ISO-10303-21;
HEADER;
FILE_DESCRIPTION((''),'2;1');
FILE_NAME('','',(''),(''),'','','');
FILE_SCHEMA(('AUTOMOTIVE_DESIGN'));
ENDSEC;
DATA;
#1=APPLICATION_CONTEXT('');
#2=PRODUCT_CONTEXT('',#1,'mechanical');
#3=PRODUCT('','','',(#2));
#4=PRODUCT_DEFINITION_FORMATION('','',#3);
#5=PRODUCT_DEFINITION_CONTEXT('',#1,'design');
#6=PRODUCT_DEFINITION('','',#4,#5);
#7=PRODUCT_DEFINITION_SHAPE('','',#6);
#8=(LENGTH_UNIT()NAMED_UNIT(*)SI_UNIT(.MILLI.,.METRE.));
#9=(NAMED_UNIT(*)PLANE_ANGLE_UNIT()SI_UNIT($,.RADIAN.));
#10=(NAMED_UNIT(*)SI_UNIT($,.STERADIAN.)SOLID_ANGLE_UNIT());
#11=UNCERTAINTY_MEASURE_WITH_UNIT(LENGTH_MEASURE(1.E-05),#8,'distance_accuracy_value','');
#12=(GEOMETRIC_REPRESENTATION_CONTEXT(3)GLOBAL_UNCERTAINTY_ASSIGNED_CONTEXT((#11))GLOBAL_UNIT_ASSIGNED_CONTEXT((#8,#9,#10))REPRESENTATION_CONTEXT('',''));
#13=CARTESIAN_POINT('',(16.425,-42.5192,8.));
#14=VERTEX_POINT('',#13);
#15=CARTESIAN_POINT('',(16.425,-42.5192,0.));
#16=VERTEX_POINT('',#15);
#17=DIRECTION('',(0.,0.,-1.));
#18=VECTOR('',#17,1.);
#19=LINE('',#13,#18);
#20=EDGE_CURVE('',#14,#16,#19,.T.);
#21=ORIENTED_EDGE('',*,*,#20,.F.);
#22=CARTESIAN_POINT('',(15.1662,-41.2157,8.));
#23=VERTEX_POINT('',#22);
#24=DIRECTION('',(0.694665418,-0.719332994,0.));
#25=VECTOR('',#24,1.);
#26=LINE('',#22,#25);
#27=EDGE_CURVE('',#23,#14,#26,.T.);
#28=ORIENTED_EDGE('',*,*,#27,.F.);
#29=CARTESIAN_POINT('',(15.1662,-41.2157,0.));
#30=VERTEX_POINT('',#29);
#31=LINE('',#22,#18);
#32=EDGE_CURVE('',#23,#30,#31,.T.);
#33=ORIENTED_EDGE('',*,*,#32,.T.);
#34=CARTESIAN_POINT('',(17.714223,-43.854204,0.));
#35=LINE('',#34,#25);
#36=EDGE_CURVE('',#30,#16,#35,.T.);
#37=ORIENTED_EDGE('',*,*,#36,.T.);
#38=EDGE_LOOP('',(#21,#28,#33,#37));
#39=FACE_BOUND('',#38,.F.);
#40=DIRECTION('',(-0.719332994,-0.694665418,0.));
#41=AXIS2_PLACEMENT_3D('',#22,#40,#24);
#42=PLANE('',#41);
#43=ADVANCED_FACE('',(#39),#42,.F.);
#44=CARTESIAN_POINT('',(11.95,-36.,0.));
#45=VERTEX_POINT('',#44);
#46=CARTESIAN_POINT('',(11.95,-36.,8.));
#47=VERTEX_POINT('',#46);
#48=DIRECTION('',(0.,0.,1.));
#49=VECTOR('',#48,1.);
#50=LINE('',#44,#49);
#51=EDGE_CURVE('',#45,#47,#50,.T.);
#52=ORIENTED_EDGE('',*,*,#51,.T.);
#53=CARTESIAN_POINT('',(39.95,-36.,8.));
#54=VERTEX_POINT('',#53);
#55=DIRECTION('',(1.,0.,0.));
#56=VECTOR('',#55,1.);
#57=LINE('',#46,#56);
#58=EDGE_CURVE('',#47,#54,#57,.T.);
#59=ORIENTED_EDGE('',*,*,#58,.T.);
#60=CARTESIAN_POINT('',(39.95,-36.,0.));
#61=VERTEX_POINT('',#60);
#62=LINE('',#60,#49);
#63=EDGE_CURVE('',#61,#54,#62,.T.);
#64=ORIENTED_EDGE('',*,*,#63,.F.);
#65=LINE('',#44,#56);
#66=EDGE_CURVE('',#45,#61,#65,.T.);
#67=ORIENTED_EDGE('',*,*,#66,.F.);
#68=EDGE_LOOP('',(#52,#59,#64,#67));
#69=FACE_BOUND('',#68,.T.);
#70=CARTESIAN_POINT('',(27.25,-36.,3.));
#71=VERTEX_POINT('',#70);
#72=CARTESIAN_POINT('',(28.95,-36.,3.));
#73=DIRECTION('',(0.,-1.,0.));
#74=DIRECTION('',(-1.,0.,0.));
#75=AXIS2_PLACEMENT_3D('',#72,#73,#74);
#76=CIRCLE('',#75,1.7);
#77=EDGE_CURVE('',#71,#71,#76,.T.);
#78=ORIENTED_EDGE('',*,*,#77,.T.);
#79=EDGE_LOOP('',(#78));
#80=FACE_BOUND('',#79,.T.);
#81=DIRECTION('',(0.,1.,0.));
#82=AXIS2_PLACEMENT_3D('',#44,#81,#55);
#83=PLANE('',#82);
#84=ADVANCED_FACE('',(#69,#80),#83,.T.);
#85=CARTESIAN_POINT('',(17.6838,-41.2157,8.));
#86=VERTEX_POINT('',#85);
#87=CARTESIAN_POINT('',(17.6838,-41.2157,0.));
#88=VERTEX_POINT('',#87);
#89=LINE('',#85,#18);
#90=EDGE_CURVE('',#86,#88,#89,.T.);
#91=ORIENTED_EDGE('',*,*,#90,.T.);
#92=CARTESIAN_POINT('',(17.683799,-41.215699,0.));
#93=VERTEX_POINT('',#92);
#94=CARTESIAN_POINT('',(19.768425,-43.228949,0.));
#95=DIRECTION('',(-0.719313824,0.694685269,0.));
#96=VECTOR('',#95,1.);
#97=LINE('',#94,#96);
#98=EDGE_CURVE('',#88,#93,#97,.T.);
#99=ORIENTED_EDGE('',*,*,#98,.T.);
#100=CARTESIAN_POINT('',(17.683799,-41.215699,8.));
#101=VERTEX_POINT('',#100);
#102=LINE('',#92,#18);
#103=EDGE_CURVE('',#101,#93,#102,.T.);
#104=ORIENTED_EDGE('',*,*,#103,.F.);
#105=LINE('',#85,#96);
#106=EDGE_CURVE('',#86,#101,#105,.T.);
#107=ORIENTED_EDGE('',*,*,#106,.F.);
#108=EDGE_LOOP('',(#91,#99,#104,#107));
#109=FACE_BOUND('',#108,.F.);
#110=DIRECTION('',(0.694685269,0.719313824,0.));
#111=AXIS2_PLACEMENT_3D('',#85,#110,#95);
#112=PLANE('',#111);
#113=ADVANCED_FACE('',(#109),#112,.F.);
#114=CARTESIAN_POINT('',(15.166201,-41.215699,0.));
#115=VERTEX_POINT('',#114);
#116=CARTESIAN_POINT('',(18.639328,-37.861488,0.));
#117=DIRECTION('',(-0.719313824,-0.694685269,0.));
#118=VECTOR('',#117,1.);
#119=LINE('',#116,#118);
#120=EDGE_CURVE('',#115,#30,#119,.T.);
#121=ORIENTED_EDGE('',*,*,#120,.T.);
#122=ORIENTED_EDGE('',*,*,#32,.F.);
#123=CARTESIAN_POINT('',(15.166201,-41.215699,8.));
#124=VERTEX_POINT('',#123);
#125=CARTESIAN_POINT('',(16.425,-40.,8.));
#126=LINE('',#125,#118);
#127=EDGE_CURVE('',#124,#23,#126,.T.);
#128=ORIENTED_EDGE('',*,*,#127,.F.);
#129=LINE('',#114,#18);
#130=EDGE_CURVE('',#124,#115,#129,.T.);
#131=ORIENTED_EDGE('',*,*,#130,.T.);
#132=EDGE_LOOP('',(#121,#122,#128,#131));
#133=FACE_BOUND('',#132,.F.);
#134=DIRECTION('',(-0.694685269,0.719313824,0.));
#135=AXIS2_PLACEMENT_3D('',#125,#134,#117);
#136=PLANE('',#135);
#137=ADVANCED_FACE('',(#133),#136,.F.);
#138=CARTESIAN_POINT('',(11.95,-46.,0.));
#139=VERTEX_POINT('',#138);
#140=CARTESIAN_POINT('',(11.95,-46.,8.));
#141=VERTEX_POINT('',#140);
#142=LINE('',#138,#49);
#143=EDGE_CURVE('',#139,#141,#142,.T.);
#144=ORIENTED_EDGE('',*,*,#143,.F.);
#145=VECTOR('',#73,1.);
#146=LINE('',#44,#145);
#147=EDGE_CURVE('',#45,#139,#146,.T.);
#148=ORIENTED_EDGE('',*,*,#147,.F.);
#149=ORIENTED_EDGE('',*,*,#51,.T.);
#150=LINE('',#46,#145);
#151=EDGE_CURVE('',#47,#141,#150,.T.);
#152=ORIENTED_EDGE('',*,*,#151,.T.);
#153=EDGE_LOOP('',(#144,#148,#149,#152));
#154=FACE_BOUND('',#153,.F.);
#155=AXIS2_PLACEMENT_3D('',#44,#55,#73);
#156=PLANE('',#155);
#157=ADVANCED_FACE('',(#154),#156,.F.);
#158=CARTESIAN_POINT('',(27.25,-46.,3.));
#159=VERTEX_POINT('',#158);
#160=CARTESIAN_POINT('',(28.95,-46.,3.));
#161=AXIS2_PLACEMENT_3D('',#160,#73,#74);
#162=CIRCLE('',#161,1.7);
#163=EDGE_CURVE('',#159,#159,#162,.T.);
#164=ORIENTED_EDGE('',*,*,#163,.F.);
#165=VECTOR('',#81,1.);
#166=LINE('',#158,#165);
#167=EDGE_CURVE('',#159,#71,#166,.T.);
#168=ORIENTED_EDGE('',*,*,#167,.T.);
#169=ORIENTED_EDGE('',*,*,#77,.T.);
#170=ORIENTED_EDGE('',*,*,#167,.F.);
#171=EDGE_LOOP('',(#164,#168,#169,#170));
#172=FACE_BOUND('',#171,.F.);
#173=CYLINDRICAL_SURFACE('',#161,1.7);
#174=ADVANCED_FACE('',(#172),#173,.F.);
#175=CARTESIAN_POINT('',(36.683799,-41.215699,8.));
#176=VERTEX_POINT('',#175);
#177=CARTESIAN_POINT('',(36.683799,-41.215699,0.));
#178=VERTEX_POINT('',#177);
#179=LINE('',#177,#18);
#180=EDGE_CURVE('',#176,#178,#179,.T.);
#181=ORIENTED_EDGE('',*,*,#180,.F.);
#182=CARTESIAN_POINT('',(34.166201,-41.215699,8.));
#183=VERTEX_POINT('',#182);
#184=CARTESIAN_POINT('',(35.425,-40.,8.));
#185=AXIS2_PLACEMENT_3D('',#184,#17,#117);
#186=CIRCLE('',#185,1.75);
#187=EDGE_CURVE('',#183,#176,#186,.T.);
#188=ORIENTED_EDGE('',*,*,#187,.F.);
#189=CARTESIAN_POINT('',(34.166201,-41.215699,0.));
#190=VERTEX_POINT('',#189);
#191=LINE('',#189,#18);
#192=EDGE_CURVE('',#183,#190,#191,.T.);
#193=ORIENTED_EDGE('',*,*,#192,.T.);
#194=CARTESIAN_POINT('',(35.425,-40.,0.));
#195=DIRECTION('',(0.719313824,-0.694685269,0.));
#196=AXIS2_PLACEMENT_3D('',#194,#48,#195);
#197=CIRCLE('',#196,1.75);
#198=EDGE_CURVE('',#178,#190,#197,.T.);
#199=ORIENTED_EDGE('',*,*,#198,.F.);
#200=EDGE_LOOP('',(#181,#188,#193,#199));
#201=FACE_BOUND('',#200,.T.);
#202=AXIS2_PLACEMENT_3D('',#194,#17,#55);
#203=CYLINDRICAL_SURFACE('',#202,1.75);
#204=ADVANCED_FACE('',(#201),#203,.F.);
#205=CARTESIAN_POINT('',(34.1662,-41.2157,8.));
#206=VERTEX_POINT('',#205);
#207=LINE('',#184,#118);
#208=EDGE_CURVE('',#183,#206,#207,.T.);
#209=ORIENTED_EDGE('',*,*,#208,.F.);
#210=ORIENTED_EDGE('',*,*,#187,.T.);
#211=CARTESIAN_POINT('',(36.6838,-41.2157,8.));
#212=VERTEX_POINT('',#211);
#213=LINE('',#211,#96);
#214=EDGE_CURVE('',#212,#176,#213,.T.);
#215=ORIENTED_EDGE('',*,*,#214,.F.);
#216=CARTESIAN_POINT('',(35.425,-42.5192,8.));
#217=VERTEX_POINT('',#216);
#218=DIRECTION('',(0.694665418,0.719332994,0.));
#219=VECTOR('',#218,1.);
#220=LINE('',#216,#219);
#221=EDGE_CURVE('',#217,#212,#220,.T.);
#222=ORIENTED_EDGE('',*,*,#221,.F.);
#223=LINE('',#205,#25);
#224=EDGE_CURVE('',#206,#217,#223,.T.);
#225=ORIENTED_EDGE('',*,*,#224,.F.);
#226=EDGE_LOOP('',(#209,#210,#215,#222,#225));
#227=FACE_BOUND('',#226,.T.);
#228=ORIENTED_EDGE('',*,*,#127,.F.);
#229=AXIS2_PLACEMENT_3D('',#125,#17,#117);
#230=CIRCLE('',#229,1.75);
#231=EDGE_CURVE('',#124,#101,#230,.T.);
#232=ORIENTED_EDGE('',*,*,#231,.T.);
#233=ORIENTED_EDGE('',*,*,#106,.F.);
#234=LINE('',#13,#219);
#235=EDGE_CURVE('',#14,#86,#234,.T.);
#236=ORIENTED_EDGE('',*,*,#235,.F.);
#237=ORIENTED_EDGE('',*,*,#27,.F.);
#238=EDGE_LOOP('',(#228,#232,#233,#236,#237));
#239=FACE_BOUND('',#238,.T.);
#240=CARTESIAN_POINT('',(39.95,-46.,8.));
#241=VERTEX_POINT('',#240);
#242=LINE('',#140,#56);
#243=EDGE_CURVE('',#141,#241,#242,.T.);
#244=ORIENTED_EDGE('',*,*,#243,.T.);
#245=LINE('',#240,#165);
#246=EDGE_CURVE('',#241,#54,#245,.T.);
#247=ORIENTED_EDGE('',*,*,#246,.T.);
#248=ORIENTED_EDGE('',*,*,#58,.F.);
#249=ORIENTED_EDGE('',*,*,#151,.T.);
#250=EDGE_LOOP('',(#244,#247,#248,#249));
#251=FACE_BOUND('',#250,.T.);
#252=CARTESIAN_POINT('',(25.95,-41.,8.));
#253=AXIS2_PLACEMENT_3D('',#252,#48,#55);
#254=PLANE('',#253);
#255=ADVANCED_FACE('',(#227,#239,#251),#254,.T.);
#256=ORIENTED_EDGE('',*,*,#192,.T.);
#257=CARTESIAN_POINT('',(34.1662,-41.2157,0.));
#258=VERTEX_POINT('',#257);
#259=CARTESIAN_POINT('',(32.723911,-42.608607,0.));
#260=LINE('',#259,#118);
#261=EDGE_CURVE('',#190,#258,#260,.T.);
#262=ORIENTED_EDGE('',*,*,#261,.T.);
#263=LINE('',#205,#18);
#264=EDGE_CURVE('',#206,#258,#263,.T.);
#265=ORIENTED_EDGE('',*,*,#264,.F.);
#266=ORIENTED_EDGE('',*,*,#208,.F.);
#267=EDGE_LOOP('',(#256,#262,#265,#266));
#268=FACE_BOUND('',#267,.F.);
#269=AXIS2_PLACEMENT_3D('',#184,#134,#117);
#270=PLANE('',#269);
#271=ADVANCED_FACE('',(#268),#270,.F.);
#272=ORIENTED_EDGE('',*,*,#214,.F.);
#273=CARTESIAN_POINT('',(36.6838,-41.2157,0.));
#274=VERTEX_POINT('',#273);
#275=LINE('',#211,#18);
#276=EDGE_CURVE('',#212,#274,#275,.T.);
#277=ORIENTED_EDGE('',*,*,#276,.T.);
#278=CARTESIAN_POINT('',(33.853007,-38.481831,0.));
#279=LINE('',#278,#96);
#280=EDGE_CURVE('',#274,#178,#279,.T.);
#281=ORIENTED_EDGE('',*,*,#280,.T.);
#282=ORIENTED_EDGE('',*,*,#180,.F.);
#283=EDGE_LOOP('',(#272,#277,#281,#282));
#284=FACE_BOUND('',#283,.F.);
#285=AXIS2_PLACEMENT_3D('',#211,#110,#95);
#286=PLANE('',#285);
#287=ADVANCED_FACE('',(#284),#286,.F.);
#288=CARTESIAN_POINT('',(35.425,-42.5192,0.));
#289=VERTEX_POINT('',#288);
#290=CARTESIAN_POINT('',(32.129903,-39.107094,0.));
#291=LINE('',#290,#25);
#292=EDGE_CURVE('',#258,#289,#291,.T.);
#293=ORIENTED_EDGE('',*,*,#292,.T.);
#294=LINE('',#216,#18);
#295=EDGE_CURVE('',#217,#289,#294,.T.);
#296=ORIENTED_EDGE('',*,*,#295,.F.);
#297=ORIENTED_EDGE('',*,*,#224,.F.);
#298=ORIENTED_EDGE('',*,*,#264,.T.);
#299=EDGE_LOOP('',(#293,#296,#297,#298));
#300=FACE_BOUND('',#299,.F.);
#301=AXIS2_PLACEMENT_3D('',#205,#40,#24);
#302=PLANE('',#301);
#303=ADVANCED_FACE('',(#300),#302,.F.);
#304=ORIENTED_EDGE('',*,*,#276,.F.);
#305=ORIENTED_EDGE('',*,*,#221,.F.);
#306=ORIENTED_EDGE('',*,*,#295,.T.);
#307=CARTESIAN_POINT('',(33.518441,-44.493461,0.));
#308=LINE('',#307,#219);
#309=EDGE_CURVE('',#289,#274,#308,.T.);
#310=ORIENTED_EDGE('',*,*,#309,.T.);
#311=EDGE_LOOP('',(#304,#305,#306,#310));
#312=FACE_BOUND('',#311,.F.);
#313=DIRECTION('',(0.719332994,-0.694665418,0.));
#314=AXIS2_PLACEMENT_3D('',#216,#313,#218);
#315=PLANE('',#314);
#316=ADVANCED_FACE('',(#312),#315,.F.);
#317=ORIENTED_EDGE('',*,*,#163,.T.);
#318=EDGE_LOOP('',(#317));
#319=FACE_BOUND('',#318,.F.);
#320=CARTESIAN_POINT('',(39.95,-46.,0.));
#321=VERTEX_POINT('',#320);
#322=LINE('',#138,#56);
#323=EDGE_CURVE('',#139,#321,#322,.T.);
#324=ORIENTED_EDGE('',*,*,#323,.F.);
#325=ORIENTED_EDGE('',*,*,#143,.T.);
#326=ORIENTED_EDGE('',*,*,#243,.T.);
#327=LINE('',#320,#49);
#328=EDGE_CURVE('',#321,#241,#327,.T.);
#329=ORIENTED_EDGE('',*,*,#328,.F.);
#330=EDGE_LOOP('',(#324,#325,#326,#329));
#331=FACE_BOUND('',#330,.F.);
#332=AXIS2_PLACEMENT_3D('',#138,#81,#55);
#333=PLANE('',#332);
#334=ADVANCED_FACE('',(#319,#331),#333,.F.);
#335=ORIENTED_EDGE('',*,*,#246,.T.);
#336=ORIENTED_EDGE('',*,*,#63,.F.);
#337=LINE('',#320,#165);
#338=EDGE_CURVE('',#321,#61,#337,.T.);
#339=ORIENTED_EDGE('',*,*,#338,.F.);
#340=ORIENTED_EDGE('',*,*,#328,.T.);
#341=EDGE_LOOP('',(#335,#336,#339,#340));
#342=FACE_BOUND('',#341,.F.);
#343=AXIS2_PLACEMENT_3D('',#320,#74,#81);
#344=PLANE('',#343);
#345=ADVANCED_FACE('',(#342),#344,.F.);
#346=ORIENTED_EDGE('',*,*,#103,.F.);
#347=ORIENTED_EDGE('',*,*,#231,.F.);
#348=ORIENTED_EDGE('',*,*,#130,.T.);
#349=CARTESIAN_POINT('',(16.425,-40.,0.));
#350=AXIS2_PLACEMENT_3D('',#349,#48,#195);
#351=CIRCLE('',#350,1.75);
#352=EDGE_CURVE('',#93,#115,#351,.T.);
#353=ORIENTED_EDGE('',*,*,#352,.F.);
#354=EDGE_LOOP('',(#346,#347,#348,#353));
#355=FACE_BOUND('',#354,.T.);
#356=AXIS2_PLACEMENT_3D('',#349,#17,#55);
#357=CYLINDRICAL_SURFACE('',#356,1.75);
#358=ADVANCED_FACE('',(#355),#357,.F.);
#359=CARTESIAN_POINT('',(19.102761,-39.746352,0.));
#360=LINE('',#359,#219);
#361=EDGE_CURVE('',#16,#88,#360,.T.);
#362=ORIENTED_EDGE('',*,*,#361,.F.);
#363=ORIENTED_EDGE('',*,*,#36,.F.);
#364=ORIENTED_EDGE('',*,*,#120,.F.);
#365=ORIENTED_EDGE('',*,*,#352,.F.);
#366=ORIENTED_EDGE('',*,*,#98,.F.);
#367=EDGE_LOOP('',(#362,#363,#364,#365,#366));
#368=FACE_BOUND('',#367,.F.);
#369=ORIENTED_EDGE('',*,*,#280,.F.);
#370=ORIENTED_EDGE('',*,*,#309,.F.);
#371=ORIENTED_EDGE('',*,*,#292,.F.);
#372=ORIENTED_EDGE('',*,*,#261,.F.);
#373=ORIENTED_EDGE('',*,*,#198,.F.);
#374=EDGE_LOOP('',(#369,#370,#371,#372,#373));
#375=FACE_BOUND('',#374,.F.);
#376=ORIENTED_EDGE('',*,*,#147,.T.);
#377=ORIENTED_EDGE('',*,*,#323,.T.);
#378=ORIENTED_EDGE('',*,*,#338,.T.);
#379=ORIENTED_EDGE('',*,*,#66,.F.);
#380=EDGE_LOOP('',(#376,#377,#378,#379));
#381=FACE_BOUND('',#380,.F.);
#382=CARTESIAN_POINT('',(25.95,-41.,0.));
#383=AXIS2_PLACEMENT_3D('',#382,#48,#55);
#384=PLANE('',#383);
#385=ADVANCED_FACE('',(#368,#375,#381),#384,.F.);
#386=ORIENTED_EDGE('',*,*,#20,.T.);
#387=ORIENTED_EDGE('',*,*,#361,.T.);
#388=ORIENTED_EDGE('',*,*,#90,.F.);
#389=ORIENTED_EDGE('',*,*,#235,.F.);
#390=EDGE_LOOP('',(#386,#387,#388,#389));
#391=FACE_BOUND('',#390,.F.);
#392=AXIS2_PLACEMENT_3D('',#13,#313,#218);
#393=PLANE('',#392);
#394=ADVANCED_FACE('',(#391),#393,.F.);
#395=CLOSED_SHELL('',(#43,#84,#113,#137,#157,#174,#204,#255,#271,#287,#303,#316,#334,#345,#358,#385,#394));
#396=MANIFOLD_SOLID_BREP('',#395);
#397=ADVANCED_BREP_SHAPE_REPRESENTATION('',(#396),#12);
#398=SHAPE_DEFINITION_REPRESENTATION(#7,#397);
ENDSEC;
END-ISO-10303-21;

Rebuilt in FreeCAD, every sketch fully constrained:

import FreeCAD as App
import Part
import Sketcher
from FreeCAD import Vector
Q = App.Units.Quantity

doc = App.newDocument("Part")
body = doc.addObject("PartDesign::Body", "Body")

# Sketch on XY plane
sketch1 = doc.addObject("Sketcher::SketchObject", "Sketch")
body.addObject(sketch1)
sketch1.AttachmentSupport = (doc.XY_Plane, [""])
sketch1.MapMode = "FlatFace"
sketch1.addGeometry(Part.LineSegment(Vector(11.9, -36, 0), Vector(11.9, -46, 0)), False)
sketch1.addGeometry(Part.LineSegment(Vector(11.9, -46, 0), Vector(40, -46, 0)), False)
sketch1.addGeometry(Part.LineSegment(Vector(40, -46, 0), Vector(40, -36, 0)), False)
sketch1.addGeometry(Part.LineSegment(Vector(40, -36, 0), Vector(11.9, -36, 0)), False)
sketch1.addGeometry(Part.Circle(Vector(16.4, -40, 0), Vector(0, 0, 1), 1.8), False)
sketch1.addGeometry(Part.Circle(Vector(35.4, -40, 0), Vector(0, 0, 1), 1.8), False)
sketch1.addConstraint(Sketcher.Constraint("Coincident", 0, 2, 1, 1))
sketch1.addConstraint(Sketcher.Constraint("Coincident", 1, 2, 2, 1))
sketch1.addConstraint(Sketcher.Constraint("Coincident", 2, 2, 3, 1))
sketch1.addConstraint(Sketcher.Constraint("Coincident", 3, 2, 0, 1))
sketch1.addConstraint(Sketcher.Constraint("Vertical", 0))
sketch1.addConstraint(Sketcher.Constraint("Horizontal", 1))
sketch1.addConstraint(Sketcher.Constraint("Vertical", 2))
sketch1.addConstraint(Sketcher.Constraint("Horizontal", 3))
sketch1.addConstraint(Sketcher.Constraint("Equal", 4, 5))
sketch1.addConstraint(Sketcher.Constraint("Horizontal", 4, 3, 5, 3))
sketch1.addConstraint(Sketcher.Constraint("Diameter", 4, Q("3.5 mm")))
sketch1.addConstraint(Sketcher.Constraint("DistanceX", 1, 1, 1, 2, Q("28 mm")))
sketch1.addConstraint(Sketcher.Constraint("DistanceY", 0, 2, 0, 1, Q("10 mm")))
sketch1.addConstraint(Sketcher.Constraint("DistanceY", 4, 3, -1, 1, Q("40 mm")))
sketch1.addConstraint(Sketcher.Constraint("DistanceY", 0, 2, -1, 1, Q("46 mm")))
sketch1.addConstraint(Sketcher.Constraint("DistanceX", 4, 3, 5, 3, Q("19 mm")))
sketch1.addConstraint(Sketcher.Constraint("DistanceX", -1, 1, 0, 2, Q("11.95 mm")))
sketch1.addConstraint(Sketcher.Constraint("DistanceX", -1, 1, 4, 3, Q("16.425 mm")))
pad1 = doc.addObject("PartDesign::Pad", "Pad")
body.addObject(pad1)
pad1.Profile = sketch1
pad1.Length = 8

# Sketch on XZ plane
sketch2 = doc.addObject("Sketcher::SketchObject", "Sketch001")
body.addObject(sketch2)
sketch2.AttachmentSupport = (doc.XZ_Plane, [""])
sketch2.MapMode = "FlatFace"
sketch2.AttachmentOffset = App.Placement(Vector(0, 0, 46), App.Rotation())
sketch2.addGeometry(Part.Circle(Vector(28.9, 3, 0), Vector(0, 0, 1), 1.7), False)
sketch2.addConstraint(Sketcher.Constraint("DistanceY", -1, 1, 0, 3, Q("3 mm")))
sketch2.addConstraint(Sketcher.Constraint("Diameter", 0, Q("3.4 mm")))
sketch2.addConstraint(Sketcher.Constraint("DistanceX", -1, 1, 0, 3, Q("28.95 mm")))
pocket1 = doc.addObject("PartDesign::Pocket", "Pocket")
body.addObject(pocket1)
pocket1.Profile = sketch2
pocket1.Type = "ThroughAll"

# Sketch on XY plane
sketch3 = doc.addObject("Sketcher::SketchObject", "Sketch002")
body.addObject(sketch3)
sketch3.AttachmentSupport = (doc.XY_Plane, [""])
sketch3.MapMode = "FlatFace"
sketch3.AttachmentOffset = App.Placement(Vector(0, 0, 8), App.Rotation())
sketch3.addGeometry(Part.LineSegment(Vector(36.7, -41.2, 0), Vector(35.4, -40, 0)), False)
sketch3.addGeometry(Part.LineSegment(Vector(35.4, -40, 0), Vector(34.2, -41.2, 0)), False)
sketch3.addGeometry(Part.LineSegment(Vector(34.2, -41.2, 0), Vector(35.4, -42.5, 0)), False)
sketch3.addGeometry(Part.LineSegment(Vector(35.4, -42.5, 0), Vector(36.7, -41.2, 0)), False)
sketch3.addGeometry(Part.LineSegment(Vector(17.7, -41.2, 0), Vector(16.4, -40, 0)), False)
sketch3.addGeometry(Part.LineSegment(Vector(16.4, -40, 0), Vector(15.2, -41.2, 0)), False)
sketch3.addGeometry(Part.LineSegment(Vector(15.2, -41.2, 0), Vector(16.4, -42.5, 0)), False)
sketch3.addGeometry(Part.LineSegment(Vector(16.4, -42.5, 0), Vector(17.7, -41.2, 0)), False)
sketch3.addConstraint(Sketcher.Constraint("Coincident", 0, 2, 1, 1))
sketch3.addConstraint(Sketcher.Constraint("Coincident", 1, 2, 2, 1))
sketch3.addConstraint(Sketcher.Constraint("Coincident", 2, 2, 3, 1))
sketch3.addConstraint(Sketcher.Constraint("Coincident", 3, 2, 0, 1))
sketch3.addConstraint(Sketcher.Constraint("Coincident", 4, 2, 5, 1))
sketch3.addConstraint(Sketcher.Constraint("Coincident", 5, 2, 6, 1))
sketch3.addConstraint(Sketcher.Constraint("Coincident", 6, 2, 7, 1))
sketch3.addConstraint(Sketcher.Constraint("Coincident", 7, 2, 4, 1))
sketch3.addConstraint(Sketcher.Constraint("Perpendicular", 1, 2))
sketch3.addConstraint(Sketcher.Constraint("Perpendicular", 0, 3))
sketch3.addConstraint(Sketcher.Constraint("Perpendicular", 3, 4))
sketch3.addConstraint(Sketcher.Constraint("Perpendicular", 2, 5))
sketch3.addConstraint(Sketcher.Constraint("Perpendicular", 5, 6))
sketch3.addConstraint(Sketcher.Constraint("Perpendicular", 4, 7))
sketch3.addConstraint(Sketcher.Constraint("Horizontal", 1, 2, 3, 2))
sketch3.addConstraint(Sketcher.Constraint("Horizontal", 0, 2, 4, 2))
sketch3.addConstraint(Sketcher.Constraint("Horizontal", 3, 2, 5, 2))
sketch3.addConstraint(Sketcher.Constraint("Horizontal", 2, 2, 6, 2))
sketch3.addConstraint(Sketcher.Constraint("Vertical", 0, 2, 2, 2))
sketch3.addConstraint(Sketcher.Constraint("Angle", 2, Q("-45.9994 deg")))
sketch3.addConstraint(Sketcher.Constraint("DistanceY", 0, 2, -1, 1, Q("40 mm")))
sketch3.addConstraint(Sketcher.Constraint("DistanceX", 4, 2, 0, 2, Q("19 mm")))
sketch3.addConstraint(Sketcher.Constraint("Distance", 0, Q("1.75 mm")))
sketch3.addConstraint(Sketcher.Constraint("DistanceX", -1, 1, 0, 2, Q("35.425 mm")))
pocket2 = doc.addObject("PartDesign::Pocket", "Pocket001")
body.addObject(pocket2)
pocket2.Profile = sketch3
pocket2.Type = "ThroughAll"

doc.recompute()
